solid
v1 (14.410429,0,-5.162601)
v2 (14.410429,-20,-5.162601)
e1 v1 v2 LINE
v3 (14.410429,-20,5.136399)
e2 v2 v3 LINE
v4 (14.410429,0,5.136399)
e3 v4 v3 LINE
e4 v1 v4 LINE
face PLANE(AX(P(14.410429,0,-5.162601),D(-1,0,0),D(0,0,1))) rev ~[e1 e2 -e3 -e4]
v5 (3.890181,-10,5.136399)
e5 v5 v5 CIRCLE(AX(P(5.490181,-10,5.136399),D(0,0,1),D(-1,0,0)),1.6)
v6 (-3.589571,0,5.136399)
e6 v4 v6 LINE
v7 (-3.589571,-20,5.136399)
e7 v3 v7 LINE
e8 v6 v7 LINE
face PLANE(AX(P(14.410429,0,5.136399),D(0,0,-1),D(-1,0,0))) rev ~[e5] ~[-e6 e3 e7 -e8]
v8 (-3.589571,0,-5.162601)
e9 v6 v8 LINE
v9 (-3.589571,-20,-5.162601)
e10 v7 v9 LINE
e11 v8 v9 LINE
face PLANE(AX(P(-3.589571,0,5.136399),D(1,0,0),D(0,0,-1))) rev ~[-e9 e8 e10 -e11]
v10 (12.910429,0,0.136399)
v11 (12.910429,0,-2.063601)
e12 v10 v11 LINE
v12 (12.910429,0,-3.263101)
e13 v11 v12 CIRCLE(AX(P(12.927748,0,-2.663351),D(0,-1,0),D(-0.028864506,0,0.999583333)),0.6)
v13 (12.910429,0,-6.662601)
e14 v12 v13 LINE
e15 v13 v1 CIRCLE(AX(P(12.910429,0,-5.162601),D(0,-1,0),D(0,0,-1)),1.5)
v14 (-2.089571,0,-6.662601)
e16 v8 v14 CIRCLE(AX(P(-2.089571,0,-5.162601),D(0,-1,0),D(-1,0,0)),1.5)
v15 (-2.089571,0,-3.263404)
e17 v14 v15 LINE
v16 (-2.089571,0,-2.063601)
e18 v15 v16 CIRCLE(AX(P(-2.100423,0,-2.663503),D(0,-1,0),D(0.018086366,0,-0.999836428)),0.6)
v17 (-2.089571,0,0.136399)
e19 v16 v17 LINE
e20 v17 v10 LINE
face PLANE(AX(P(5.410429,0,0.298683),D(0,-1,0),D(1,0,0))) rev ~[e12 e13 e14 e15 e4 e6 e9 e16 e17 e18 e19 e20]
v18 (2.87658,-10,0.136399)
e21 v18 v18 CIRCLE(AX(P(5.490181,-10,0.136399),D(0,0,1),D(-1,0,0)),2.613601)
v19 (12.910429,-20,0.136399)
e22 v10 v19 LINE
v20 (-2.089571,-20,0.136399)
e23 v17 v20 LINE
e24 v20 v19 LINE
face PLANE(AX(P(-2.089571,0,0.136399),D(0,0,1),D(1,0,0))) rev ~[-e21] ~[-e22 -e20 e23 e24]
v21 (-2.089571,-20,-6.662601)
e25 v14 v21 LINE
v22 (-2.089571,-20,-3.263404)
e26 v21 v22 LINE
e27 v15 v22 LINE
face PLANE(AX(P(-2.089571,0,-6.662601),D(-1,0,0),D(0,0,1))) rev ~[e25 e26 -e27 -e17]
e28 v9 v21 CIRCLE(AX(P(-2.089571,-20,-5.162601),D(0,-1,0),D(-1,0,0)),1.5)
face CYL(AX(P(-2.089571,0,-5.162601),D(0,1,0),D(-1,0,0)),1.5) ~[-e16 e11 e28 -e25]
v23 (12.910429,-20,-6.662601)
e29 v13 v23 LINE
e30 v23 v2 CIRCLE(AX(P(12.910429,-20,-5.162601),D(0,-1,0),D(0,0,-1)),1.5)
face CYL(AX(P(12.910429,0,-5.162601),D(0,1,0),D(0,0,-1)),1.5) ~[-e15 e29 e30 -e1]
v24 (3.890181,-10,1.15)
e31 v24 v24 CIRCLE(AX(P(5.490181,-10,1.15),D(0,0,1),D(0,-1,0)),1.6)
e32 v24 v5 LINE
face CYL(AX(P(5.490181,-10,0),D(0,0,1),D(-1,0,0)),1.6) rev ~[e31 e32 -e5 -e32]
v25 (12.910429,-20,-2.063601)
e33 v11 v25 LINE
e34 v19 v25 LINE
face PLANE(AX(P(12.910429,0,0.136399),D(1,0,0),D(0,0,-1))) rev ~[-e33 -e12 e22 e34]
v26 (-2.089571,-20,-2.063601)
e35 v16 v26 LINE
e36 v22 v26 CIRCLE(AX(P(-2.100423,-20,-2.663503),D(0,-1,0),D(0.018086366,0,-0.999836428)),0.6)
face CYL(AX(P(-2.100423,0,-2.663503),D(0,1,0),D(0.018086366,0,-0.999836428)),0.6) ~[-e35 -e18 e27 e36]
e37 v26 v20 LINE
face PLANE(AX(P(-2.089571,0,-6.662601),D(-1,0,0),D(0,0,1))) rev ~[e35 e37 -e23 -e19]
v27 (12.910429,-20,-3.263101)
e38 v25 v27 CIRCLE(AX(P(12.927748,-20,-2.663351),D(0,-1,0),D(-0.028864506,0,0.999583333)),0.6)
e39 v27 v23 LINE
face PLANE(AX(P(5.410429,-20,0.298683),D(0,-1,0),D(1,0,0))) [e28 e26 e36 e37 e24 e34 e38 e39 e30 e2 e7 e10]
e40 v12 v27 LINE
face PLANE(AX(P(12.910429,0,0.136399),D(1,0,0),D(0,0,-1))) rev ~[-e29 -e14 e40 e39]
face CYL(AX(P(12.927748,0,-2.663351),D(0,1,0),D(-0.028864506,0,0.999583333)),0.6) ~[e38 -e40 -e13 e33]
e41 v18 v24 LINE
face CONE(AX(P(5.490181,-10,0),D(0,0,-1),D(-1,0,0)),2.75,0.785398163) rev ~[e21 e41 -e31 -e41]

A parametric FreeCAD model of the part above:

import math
import FreeCAD as App
import Part
import Sketcher
from FreeCAD import Vector
Q = App.Units.Quantity

doc = App.newDocument("Part")
params = doc.addObject("Spreadsheet::Sheet", "Params")
for row, (alias, value) in enumerate([
    ("sketch1_radius", "1.5 mm"),
    ("sketch1_width", "18 mm"),
    ("sketch1_width2", "15 mm"),
    ("pad1_length", "20 mm"),
    ("sketch2_diameter", "3.2 mm"),
    ("hole_diameter", "3.2 mm"),
    ("hole_csink_diameter", "5.5 mm"),
    ("sketch3_radius", "0.6 mm"),
    ("pad2_length", "20 mm"),
], start=1):
    params.set(f"A{row}", alias)
    params.set(f"B{row}", "=" + value)
    params.setAlias(f"B{row}", alias)

body = doc.addObject("PartDesign::Body", "Body")

# Sketch on XZ plane
sketch1 = body.newObject("Sketcher::SketchObject", "Sketch")
sketch1.AttachmentSupport = (doc.getObject("XZ_Plane"), [""])
sketch1.MapMode = "FlatFace"
sketch1.addGeometry([
    Part.LineSegment(Vector(14.4, 5.1, 0), Vector(-3.6, 5.1, 0)),  # 0
    Part.LineSegment(Vector(-3.6, 5.1, 0), Vector(-3.6, -5.2, 0)),  # 1
    Part.ArcOfCircle(Part.Circle(Vector(-2.1, -5.2, 0), Vector(0, 0, 1), 1.5), math.radians(180), math.radians(270)),  # 2
    Part.LineSegment(Vector(-2.1, -6.7, 0), Vector(-2.1, 0.1, 0)),  # 3
    Part.LineSegment(Vector(-2.1, 0.1, 0), Vector(12.9, 0.1, 0)),  # 4
    Part.LineSegment(Vector(12.9, 0.1, 0), Vector(12.9, -6.7, 0)),  # 5
    Part.ArcOfCircle(Part.Circle(Vector(12.9, -5.2, 0), Vector(0, 0, 1), 1.5), math.radians(-90), math.radians(0)),  # 6
    Part.LineSegment(Vector(14.4, -5.2, 0), Vector(14.4, 5.1, 0)),  # 7
], False)
sketch1.addConstraint([
    Sketcher.Constraint("Coincident", 0, 2, 1, 1),
    Sketcher.Constraint("Tangent", 1, 2, 2, 1),
    Sketcher.Constraint("Coincident", 2, 2, 3, 1),
    Sketcher.Constraint("Coincident", 3, 2, 4, 1),
    Sketcher.Constraint("Coincident", 4, 2, 5, 1),
    Sketcher.Constraint("Coincident", 5, 2, 6, 1),
    Sketcher.Constraint("Tangent", 6, 2, 7, 1),
    Sketcher.Constraint("Coincident", 7, 2, 0, 1),
    Sketcher.Constraint("Horizontal", 0),
    Sketcher.Constraint("Vertical", 1),
    Sketcher.Constraint("Vertical", 3),
    Sketcher.Constraint("Horizontal", 4),
    Sketcher.Constraint("Vertical", 5),
    Sketcher.Constraint("Vertical", 7),
    Sketcher.Constraint("Equal", 2, 6),
    Sketcher.Constraint("Horizontal", 2, 3, 6, 3),
    Sketcher.Constraint("Vertical", 6, 3, 4, 2),
    Sketcher.Constraint("Radius", 2, Q("1.5 mm")),
    Sketcher.Constraint("DistanceX", 0, 2, 0, 1, Q("18 mm")),
    Sketcher.Constraint("DistanceX", 4, 1, 4, 2, Q("15 mm")),
    Sketcher.Constraint("DistanceY", 3, 2, 0, 2, Q("5 mm")),
    Sketcher.Constraint("DistanceY", 1, 2, 1, 1, Q("10.299 mm")),
    Sketcher.Constraint("DistanceY", 2, 3, -1, 1, Q("5.162601 mm")),
    Sketcher.Constraint("DistanceX", 2, 3, -1, 1, Q("2.089571 mm")),
])
sketch1.setExpression("Constraints[17]", "Params.sketch1_radius")
sketch1.setExpression("Constraints[18]", "Params.sketch1_width")
sketch1.setExpression("Constraints[19]", "Params.sketch1_width2")
pad1 = body.newObject("PartDesign::Pad", "Pad")
pad1.Profile = sketch1
pad1.setExpression("Length", "Params.pad1_length")

# Sketch on XY plane
sketch2 = body.newObject("Sketcher::SketchObject", "Sketch001")
sketch2.AttachmentSupport = (doc.getObject("XY_Plane"), [""])
sketch2.MapMode = "FlatFace"
sketch2.addGeometry(Part.Circle(Vector(5.5, -10, 0), Vector(0, 0, 1), 1.6), False)
sketch2.addConstraint([
    Sketcher.Constraint("Diameter", 0, Q("3.2 mm")),
    Sketcher.Constraint("DistanceY", 0, 3, -1, 1, Q("10 mm")),
    Sketcher.Constraint("DistanceX", -1, 1, 0, 3, Q("5.490181 mm")),
])
sketch2.setExpression("Constraints[0]", "Params.sketch2_diameter")
doc.recompute()
hole = body.newObject("PartDesign::Hole", "Hole")
hole.Profile = sketch2
hole.ThreadType = "None"
hole.setExpression("Diameter", "Params.hole_diameter")
hole.DepthType = "ThroughAll"
hole.HoleCutType = "Countersink"
hole.setExpression("HoleCutDiameter", "Params.hole_csink_diameter")
hole.HoleCutCountersinkAngle = 90
hole.Reversed = True

# Sketch on XZ plane
sketch3 = body.newObject("Sketcher::SketchObject", "Sketch002")
sketch3.AttachmentSupport = (doc.getObject("XZ_Plane"), [""])
sketch3.MapMode = "FlatFace"
sketch3.addGeometry([
    Part.LineSegment(Vector(-2.1, -2.1, 0), Vector(-2.1, -3.3, 0)),
    Part.ArcOfCircle(Part.Circle(Vector(-2.1, -2.7, 0), Vector(0, 0, 1), 0.6), math.radians(-89), math.radians(89)),
    Part.ArcOfCircle(Part.Circle(Vector(12.9, -2.7, 0), Vector(0, 0, 1), 0.6), math.radians(92), math.radians(268)),
    Part.LineSegment(Vector(12.9, -3.3, 0), Vector(12.9, -2.1, 0)),
], False)
sketch3.addConstraint([
    Sketcher.Constraint("Coincident", 0, 1, 1, 2),
    Sketcher.Constraint("Coincident", 1, 1, 0, 2),
    Sketcher.Constraint("Coincident", 2, 1, 3, 2),
    Sketcher.Constraint("Coincident", 3, 1, 2, 2),
    Sketcher.Constraint("Vertical", 0),
    Sketcher.Constraint("Vertical", 3),
    Sketcher.Constraint("Equal", 1, 2),
    Sketcher.Constraint("Horizontal", 0, 1, 2, 1),
    Sketcher.Constraint("Radius", 1, Q("0.6 mm")),
    Sketcher.Constraint("DistanceX", 0, 1, 2, 1, Q("15 mm")),
    Sketcher.Constraint("DistanceY", 3, 1, 3, 2, Q("1.1995 mm")),
    Sketcher.Constraint("DistanceY", 0, 1, -1, 1, Q("2.063601 mm")),
    Sketcher.Constraint("DistanceY", 1, 3, 0, 1, Q("0.599902 mm")),
    Sketcher.Constraint("DistanceX", 0, 1, -1, 1, Q("2.089571 mm")),
])
sketch3.setExpression("Constraints[8]", "Params.sketch3_radius")
pad2 = body.newObject("PartDesign::Pad", "Pad001")
pad2.Profile = sketch3
pad2.setExpression("Length", "Params.pad2_length")

doc.recompute()
